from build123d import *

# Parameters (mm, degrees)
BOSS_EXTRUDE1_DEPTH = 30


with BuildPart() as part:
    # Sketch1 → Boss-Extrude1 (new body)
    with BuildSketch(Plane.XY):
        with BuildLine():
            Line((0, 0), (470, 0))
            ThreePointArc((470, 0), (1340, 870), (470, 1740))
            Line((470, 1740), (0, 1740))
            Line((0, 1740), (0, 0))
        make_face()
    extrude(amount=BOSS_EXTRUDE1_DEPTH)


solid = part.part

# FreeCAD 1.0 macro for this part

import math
import FreeCAD as App
import Part
import Sketcher

V = App.Vector

doc = App.newDocument("Part")
body = doc.addObject("PartDesign::Body", "Body")

# Sketch on XY plane
sketch1 = body.newObject("Sketcher::SketchObject", "Sketch")
sketch1.AttachmentSupport = (doc.getObject("XY_Plane"), [""])
sketch1.MapMode = "FlatFace"
sketch1.addGeometry([
    Part.LineSegment(V(0, 0, 0), V(470, 0, 0)),
    Part.ArcOfCircle(Part.Circle(V(470, 870, 0), V(0, 0, 1), 870), math.radians(-90), math.radians(90)),
    Part.LineSegment(V(470, 1740, 0), V(0, 1740, 0)),
    Part.LineSegment(V(0, 1740, 0), V(0, 0, 0)),
], False)
sketch1.addConstraint([
    Sketcher.Constraint("Tangent", 0, 2, 1, 1),
    Sketcher.Constraint("Tangent", 1, 2, 2, 1),
    Sketcher.Constraint("Coincident", 2, 2, 3, 1),
    Sketcher.Constraint("Coincident", 3, 2, 0, 1),
    Sketcher.Constraint("Horizontal", 0),
    Sketcher.Constraint("Horizontal", 2),
    Sketcher.Constraint("Vertical", 3),
    Sketcher.Constraint("Coincident", 3, 2, -1, 1),
    Sketcher.Constraint("Radius", 1, 870.0),
    Sketcher.Constraint("DistanceX", 0, 1, 0, 2, 470.0),
])
pad1 = body.newObject("PartDesign::Pad", "Pad")
pad1.Profile = sketch1
pad1.Length = 30

doc.recompute()
